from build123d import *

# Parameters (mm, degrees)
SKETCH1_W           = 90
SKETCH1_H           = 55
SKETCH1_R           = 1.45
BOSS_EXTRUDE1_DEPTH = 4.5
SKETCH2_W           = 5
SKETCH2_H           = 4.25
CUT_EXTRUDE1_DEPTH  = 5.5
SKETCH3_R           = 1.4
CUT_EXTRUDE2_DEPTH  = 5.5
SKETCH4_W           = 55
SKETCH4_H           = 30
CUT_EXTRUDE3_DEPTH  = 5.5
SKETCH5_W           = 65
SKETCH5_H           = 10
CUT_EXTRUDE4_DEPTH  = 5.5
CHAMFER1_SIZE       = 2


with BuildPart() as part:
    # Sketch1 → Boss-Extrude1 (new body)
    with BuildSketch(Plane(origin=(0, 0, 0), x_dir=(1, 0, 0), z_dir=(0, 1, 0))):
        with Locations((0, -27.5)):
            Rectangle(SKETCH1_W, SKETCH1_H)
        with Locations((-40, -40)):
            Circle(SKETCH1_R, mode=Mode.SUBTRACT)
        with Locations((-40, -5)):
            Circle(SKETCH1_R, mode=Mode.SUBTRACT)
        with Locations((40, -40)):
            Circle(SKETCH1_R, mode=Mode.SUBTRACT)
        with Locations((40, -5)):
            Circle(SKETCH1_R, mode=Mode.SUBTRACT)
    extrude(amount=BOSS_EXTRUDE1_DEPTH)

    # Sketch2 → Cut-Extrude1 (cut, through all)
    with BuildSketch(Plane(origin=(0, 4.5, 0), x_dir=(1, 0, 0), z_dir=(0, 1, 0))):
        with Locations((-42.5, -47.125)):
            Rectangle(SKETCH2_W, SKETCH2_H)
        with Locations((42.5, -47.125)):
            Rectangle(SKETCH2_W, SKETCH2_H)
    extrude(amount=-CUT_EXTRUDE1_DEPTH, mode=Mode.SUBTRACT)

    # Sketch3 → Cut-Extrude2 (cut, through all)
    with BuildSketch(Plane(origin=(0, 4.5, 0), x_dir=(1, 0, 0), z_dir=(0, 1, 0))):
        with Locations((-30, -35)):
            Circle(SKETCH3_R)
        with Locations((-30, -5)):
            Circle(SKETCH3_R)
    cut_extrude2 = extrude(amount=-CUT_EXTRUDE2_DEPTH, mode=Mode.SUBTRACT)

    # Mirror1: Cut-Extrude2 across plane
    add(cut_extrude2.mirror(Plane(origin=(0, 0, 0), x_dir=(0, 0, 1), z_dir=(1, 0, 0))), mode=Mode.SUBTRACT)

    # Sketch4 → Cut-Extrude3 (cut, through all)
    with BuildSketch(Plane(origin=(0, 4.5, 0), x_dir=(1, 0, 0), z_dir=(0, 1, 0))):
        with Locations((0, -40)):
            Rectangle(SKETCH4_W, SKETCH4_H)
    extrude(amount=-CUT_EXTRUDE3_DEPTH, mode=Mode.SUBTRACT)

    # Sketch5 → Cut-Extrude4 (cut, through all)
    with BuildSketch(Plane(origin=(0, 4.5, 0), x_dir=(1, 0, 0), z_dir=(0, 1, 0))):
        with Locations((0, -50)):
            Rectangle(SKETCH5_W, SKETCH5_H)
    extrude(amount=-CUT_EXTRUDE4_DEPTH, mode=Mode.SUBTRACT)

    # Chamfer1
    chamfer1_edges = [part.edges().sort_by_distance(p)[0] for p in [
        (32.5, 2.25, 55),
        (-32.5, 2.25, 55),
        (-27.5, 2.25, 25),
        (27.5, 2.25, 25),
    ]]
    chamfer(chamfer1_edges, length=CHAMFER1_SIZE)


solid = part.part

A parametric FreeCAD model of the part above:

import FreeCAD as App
import Part
import Sketcher

V = App.Vector


def edges_at(feature, points):
    """Names of the edges that pass closest to the given points."""
    edges = feature.Shape.Edges
    near = lambda p: min(range(len(edges)), key=lambda i: edges[i].distToShape(Part.Vertex(*p))[0])
    return sorted({f"Edge{near(p) + 1}" for p in points})


def add_polygon(sketch, points):
    """Adds a closed chain of lines whose ends are joined by coincident constraints."""
    first, n = sketch.GeometryCount, len(points)
    for a, b in zip(points, points[1:] + points[:1]):
        sketch.addGeometry(Part.LineSegment(App.Vector(*a, 0), App.Vector(*b, 0)), False)
    for i in range(n):
        sketch.addConstraint(Sketcher.Constraint("Coincident", first + i, 2, first + (i + 1) % n, 1))

doc = App.newDocument("Part")
params = doc.addObject("Spreadsheet::Sheet", "Params")
for row, (alias, value) in enumerate([
    ("sketch1_diameter", "2.9 mm"),
    ("sketch1_width", "90 mm"),
    ("sketch1_height", "55 mm"),
    ("pad1_length", "4.5 mm"),
    ("sketch2_width", "5 mm"),
    ("sketch2_height", "4.25 mm"),
    ("sketch3_diameter", "2.8 mm"),
    ("sketch4_width", "55 mm"),
    ("sketch4_height", "30 mm"),
    ("sketch5_width", "65 mm"),
    ("sketch5_height", "10 mm"),
    ("chamfer_size", "2 mm"),
], start=1):
    params.set(f"A{row}", alias)
    params.set(f"B{row}", "=" + value)
    params.setAlias(f"B{row}", alias)

body = doc.addObject("PartDesign::Body", "Body")

# Sketch on XZ plane
sketch1 = body.newObject("Sketcher::SketchObject", "Sketch")
sketch1.AttachmentSupport = (doc.getObject("XZ_Plane"), [""])
sketch1.MapMode = "FlatFace"
add_polygon(sketch1, [(-45, 0), (-45, 55), (45, 55), (45, 0)])  # lines 0-3
sketch1.addGeometry(Part.Circle(V(-40, 40, 0), V(0, 0, 1), 1.45), False)  # 4
sketch1.addGeometry(Part.Circle(V(40, 40, 0), V(0, 0, 1), 1.45), False)  # 5
sketch1.addGeometry(Part.Circle(V(-40, 5, 0), V(0, 0, 1), 1.45), False)  # 6
sketch1.addGeometry(Part.Circle(V(40, 5, 0), V(0, 0, 1), 1.45), False)  # 7
sketch1.addConstraint(Sketcher.Constraint("Vertical", 0))
sketch1.addConstraint(Sketcher.Constraint("Horizontal", 1))
sketch1.addConstraint(Sketcher.Constraint("Vertical", 2))
sketch1.addConstraint(Sketcher.Constraint("Horizontal", 3))
sketch1.addConstraint(Sketcher.Constraint("Equal", 4, 5))
sketch1.addConstraint(Sketcher.Constraint("Equal", 5, 6))
sketch1.addConstraint(Sketcher.Constraint("Equal", 6, 7))
sketch1.addConstraint(Sketcher.Constraint("Symmetric", 2, 2, 3, 2, -1, 1))
sketch1.addConstraint(Sketcher.Constraint("Symmetric", 4, 3, 5, 3, -2))
sketch1.addConstraint(Sketcher.Constraint("Symmetric", 6, 3, 7, 3, -2))
sketch1.addConstraint(Sketcher.Constraint("Vertical", 4, 3, 6, 3))
sketch1.addConstraint(Sketcher.Constraint("Diameter", 4, 2.9))
sketch1.addConstraint(Sketcher.Constraint("DistanceX", 1, 1, 1, 2, 90.0))
sketch1.addConstraint(Sketcher.Constraint("DistanceY", 0, 1, 0, 2, 55.0))
sketch1.addConstraint(Sketcher.Constraint("DistanceX", 4, 3, -1, 1, 40.0))
sketch1.addConstraint(Sketcher.Constraint("DistanceY", -1, 1, 4, 3, 40.0))
sketch1.addConstraint(Sketcher.Constraint("DistanceY", -1, 1, 6, 3, 5.0))
sketch1.setExpression("Constraints[15]", "Params.sketch1_diameter")
sketch1.setExpression("Constraints[16]", "Params.sketch1_width")
sketch1.setExpression("Constraints[17]", "Params.sketch1_height")
pad1 = body.newObject("PartDesign::Pad", "Pad")
pad1.Profile = sketch1
pad1.setExpression("Length", "Params.pad1_length")
pad1.Reversed = True

# Sketch on XZ plane
sketch2 = body.newObject("Sketcher::SketchObject", "Sketch001")
sketch2.AttachmentSupport = (doc.getObject("XZ_Plane"), [""])
sketch2.MapMode = "FlatFace"
sketch2.AttachmentOffset = App.Placement(V(0, 0, -4.5), App.Rotation())
add_polygon(sketch2, [(-45, 45), (-45, 49.25), (-40, 49.25), (-40, 45)])  # lines 0-3
add_polygon(sketch2, [(40, 45), (40, 49.25), (45, 49.25), (45, 45)])  # lines 4-7
sketch2.addConstraint(Sketcher.Constraint("Vertical", 0))
sketch2.addConstraint(Sketcher.Constraint("Horizontal", 1))
sketch2.addConstraint(Sketcher.Constraint("Vertical", 2))
sketch2.addConstraint(Sketcher.Constraint("Horizontal", 3))
sketch2.addConstraint(Sketcher.Constraint("Vertical", 4))
sketch2.addConstraint(Sketcher.Constraint("Horizontal", 5))
sketch2.addConstraint(Sketcher.Constraint("Vertical", 6))
sketch2.addConstraint(Sketcher.Constraint("Horizontal", 7))
sketch2.addConstraint(Sketcher.Constraint("Symmetric", 1, 2, 4, 2, -2))
sketch2.addConstraint(Sketcher.Constraint("Symmetric", 3, 2, 6, 2, -2))
sketch2.addConstraint(Sketcher.Constraint("DistanceX", 1, 1, 1, 2, 5.0))
sketch2.addConstraint(Sketcher.Constraint("DistanceX", 0, 2, -1, 1, 45.0))
sketch2.addConstraint(Sketcher.Constraint("DistanceY", -1, 1, 2, 2, 45.0))
sketch2.addConstraint(Sketcher.Constraint("DistanceY", 0, 1, 0, 2, 4.25))
sketch2.setExpression("Constraints[18]", "Params.sketch2_width")
sketch2.setExpression("Constraints[21]", "Params.sketch2_height")
pocket1 = body.newObject("PartDesign::Pocket", "Pocket")
pocket1.Profile = sketch2
pocket1.Type = "ThroughAll"
pocket1.Reversed = True

# Sketch on XZ plane
sketch3 = body.newObject("Sketcher::SketchObject", "Sketch002")
sketch3.AttachmentSupport = (doc.getObject("XZ_Plane"), [""])
sketch3.MapMode = "FlatFace"
sketch3.AttachmentOffset = App.Placement(V(0, 0, -4.5), App.Rotation())
sketch3.addGeometry(Part.Circle(V(-30, 35, 0), V(0, 0, 1), 1.4), False)
sketch3.addGeometry(Part.Circle(V(-30, 5, 0), V(0, 0, 1), 1.4), False)
sketch3.addConstraint(Sketcher.Constraint("Equal", 0, 1))
sketch3.addConstraint(Sketcher.Constraint("Vertical", 0, 3, 1, 3))
sketch3.addConstraint(Sketcher.Constraint("Diameter", 0, 2.8))
sketch3.addConstraint(Sketcher.Constraint("DistanceX", 0, 3, -1, 1, 30.0))
sketch3.addConstraint(Sketcher.Constraint("DistanceY", -1, 1, 0, 3, 35.0))
sketch3.addConstraint(Sketcher.Constraint("DistanceY", -1, 1, 1, 3, 5.0))
sketch3.setExpression("Constraints[2]", "Params.sketch3_diameter")
pocket2 = body.newObject("PartDesign::Pocket", "Pocket001")
pocket2.Profile = sketch3
pocket2.Type = "ThroughAll"
pocket2.Reversed = True
doc.recompute()

mirrored = body.newObject("PartDesign::Mirrored", "Mirrored")
mirrored.Originals = [pocket2]
mirrored.MirrorPlane = (doc.getObject("YZ_Plane"), [""])
body.Tip = mirrored

# Sketch on XZ plane
sketch4 = body.newObject("Sketcher::SketchObject", "Sketch003")
sketch4.AttachmentSupport = (doc.getObject("XZ_Plane"), [""])
sketch4.MapMode = "FlatFace"
sketch4.AttachmentOffset = App.Placement(V(0, 0, -4.5), App.Rotation())
add_polygon(sketch4, [(-27.5, 25), (-27.5, 55), (27.5, 55), (27.5, 25)])  # lines 0-3
sketch4.addConstraint(Sketcher.Constraint("Vertical", 0))
sketch4.addConstraint(Sketcher.Constraint("Horizontal", 1))
sketch4.addConstraint(Sketcher.Constraint("Vertical", 2))
sketch4.addConstraint(Sketcher.Constraint("Horizontal", 3))
sketch4.addConstraint(Sketcher.Constraint("DistanceX", 1, 1, 1, 2, 55.0))
sketch4.addConstraint(Sketcher.Constraint("DistanceY", 0, 1, 0, 2, 30.0))
sketch4.addConstraint(Sketcher.Constraint("DistanceY", -1, 1, 0, 2, 55.0))
sketch4.addConstraint(Sketcher.Constraint("DistanceX", 0, 2, -1, 1, 27.5))
sketch4.setExpression("Constraints[8]", "Params.sketch4_width")
sketch4.setExpression("Constraints[9]", "Params.sketch4_height")
pocket3 = body.newObject("PartDesign::Pocket", "Pocket002")
pocket3.Profile = sketch4
pocket3.Type = "ThroughAll"
pocket3.Reversed = True

# Sketch on XZ plane
sketch5 = body.newObject("Sketcher::SketchObject", "Sketch004")
sketch5.AttachmentSupport = (doc.getObject("XZ_Plane"), [""])
sketch5.MapMode = "FlatFace"
sketch5.AttachmentOffset = App.Placement(V(0, 0, -4.5), App.Rotation())
add_polygon(sketch5, [(-32.5, 45), (-32.5, 55), (32.5, 55), (32.5, 45)])  # lines 0-3
sketch5.addConstraint(Sketcher.Constraint("Vertical", 0))
sketch5.addConstraint(Sketcher.Constraint("Horizontal", 1))
sketch5.addConstraint(Sketcher.Constraint("Vertical", 2))
sketch5.addConstraint(Sketcher.Constraint("Horizontal", 3))
sketch5.addConstraint(Sketcher.Constraint("DistanceX", 1, 1, 1, 2, 65.0))
sketch5.addConstraint(Sketcher.Constraint("DistanceY", 0, 1, 0, 2, 10.0))
sketch5.addConstraint(Sketcher.Constraint("DistanceY", -1, 1, 0, 2, 55.0))
sketch5.addConstraint(Sketcher.Constraint("DistanceX", 0, 2, -1, 1, 32.5))
sketch5.setExpression("Constraints[8]", "Params.sketch5_width")
sketch5.setExpression("Constraints[9]", "Params.sketch5_height")
pocket4 = body.newObject("PartDesign::Pocket", "Pocket003")
pocket4.Profile = sketch5
pocket4.Type = "ThroughAll"
pocket4.Reversed = True
doc.recompute()

chamfer = body.newObject("PartDesign::Chamfer", "Chamfer")
chamfer.Base = (pocket4, edges_at(pocket4, [
    (32.5, 2.25, 55),
    (-32.5, 2.25, 55),
    (-27.5, 2.25, 25),
    (27.5, 2.25, 25),
]))
chamfer.setExpression("Size", "Params.chamfer_size")

doc.recompute()
